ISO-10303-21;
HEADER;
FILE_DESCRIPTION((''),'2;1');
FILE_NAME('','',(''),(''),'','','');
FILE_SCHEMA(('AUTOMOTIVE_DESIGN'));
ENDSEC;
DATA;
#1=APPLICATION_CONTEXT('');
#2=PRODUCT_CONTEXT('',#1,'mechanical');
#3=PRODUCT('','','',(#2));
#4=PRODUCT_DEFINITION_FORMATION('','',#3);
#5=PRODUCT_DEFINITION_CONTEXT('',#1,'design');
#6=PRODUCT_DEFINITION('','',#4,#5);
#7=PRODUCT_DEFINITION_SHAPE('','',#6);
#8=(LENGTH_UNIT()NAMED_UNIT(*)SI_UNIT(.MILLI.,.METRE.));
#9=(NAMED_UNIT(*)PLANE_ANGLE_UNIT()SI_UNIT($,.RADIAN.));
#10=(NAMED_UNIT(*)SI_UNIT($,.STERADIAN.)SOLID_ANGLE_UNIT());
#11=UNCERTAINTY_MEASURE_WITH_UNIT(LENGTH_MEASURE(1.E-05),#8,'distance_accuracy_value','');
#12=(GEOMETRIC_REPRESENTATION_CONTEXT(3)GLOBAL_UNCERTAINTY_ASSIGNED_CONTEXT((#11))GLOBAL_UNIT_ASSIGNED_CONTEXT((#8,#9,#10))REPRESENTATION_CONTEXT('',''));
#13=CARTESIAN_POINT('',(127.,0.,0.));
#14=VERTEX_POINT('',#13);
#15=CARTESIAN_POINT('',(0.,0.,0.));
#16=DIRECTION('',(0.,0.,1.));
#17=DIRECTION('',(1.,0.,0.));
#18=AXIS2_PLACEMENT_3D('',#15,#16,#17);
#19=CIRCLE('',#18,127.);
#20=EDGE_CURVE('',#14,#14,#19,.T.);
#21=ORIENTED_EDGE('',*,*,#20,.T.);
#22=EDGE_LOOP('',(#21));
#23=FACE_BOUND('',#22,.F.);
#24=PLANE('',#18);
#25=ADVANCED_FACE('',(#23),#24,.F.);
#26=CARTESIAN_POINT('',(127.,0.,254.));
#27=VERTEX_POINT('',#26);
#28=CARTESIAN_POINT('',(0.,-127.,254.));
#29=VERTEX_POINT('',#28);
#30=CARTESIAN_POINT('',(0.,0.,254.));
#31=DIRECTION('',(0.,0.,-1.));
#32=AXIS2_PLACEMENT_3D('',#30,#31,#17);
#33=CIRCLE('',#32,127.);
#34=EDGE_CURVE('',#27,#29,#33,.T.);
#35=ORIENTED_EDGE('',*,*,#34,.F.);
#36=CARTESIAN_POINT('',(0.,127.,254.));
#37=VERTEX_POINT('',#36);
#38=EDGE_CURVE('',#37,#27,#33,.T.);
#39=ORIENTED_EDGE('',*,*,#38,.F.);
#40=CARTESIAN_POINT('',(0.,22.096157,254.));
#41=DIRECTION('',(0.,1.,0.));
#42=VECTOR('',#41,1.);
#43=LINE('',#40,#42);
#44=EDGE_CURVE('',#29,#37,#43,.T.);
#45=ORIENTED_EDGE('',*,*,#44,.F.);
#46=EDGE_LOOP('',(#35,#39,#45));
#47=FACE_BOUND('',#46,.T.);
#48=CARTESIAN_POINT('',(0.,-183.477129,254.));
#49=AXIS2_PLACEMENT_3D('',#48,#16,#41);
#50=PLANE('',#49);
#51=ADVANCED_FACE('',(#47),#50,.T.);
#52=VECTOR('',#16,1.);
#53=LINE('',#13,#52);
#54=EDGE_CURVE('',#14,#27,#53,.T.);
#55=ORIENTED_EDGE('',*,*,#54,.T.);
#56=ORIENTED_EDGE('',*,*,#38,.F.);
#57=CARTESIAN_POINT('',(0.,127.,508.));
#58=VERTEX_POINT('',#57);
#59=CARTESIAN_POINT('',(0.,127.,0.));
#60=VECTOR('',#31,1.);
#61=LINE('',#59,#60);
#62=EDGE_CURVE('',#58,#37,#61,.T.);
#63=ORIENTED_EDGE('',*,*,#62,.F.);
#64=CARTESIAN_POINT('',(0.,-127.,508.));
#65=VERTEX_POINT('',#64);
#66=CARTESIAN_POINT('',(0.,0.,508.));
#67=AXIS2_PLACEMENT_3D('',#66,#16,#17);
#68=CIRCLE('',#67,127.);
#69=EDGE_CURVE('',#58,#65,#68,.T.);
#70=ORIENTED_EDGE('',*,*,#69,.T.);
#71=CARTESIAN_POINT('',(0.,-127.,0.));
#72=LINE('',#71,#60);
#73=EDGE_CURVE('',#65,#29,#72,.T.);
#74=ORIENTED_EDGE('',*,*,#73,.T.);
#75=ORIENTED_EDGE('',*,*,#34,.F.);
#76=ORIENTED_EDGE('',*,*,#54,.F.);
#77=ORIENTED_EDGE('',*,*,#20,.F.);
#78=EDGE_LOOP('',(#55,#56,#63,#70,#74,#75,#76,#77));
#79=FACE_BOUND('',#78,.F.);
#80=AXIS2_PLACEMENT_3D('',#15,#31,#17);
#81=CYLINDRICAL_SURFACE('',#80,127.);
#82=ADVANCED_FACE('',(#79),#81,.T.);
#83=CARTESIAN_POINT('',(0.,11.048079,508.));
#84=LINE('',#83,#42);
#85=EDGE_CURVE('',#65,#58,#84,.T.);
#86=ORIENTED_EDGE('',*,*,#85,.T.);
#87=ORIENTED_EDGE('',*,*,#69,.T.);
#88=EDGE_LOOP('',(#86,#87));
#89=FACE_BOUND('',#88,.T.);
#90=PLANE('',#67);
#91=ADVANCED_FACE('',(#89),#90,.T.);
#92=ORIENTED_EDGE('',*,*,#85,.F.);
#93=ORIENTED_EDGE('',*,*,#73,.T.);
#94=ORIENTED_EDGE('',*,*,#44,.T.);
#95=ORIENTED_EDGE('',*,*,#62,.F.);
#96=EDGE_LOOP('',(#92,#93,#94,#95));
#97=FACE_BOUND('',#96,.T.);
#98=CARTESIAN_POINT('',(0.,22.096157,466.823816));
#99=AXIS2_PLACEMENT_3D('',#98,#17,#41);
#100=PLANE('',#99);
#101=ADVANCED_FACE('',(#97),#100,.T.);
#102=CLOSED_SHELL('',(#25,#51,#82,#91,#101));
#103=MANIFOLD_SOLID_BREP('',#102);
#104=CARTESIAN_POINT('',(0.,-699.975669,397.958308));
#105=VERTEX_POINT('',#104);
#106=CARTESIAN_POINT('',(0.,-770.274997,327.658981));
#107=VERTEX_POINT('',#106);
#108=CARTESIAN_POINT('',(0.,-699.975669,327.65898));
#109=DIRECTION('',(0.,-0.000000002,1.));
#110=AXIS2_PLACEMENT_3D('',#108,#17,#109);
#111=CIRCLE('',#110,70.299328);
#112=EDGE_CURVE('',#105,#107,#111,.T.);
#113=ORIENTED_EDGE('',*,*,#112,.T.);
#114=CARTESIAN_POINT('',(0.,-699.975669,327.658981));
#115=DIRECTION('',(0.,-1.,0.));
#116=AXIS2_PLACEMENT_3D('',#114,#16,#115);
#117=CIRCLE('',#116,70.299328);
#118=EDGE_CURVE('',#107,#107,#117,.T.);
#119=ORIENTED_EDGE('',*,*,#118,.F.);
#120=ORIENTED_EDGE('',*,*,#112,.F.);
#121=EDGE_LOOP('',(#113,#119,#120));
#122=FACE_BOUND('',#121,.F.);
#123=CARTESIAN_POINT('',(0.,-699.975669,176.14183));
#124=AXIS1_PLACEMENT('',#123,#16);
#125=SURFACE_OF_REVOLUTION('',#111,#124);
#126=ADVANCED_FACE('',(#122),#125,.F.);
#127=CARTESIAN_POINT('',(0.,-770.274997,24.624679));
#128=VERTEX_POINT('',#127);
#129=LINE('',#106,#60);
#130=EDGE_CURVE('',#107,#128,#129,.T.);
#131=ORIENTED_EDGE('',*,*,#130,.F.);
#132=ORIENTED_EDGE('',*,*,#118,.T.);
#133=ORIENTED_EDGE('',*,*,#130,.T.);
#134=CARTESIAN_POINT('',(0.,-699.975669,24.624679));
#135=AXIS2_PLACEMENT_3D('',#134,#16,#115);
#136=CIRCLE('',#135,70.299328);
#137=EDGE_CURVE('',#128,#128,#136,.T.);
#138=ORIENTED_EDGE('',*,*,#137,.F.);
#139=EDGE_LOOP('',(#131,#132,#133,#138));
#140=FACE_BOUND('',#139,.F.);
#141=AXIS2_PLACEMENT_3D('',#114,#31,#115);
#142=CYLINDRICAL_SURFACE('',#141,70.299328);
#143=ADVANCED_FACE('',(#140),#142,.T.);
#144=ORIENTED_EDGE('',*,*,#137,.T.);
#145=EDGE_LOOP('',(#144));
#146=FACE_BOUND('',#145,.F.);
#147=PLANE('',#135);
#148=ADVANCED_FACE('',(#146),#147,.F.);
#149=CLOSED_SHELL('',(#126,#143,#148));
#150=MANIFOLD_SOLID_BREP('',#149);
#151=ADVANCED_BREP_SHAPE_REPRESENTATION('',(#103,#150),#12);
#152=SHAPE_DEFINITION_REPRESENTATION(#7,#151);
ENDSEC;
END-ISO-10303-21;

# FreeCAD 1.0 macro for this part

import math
import FreeCAD as App
import Part
import Sketcher

V = App.Vector
Q = App.Units.Quantity


def add_polygon(sketch, points):
    """Adds a closed chain of lines whose ends are joined by coincident constraints."""
    first, n = sketch.GeometryCount, len(points)
    for a, b in zip(points, points[1:] + points[:1]):
        sketch.addGeometry(Part.LineSegment(App.Vector(*a, 0), App.Vector(*b, 0)), False)
    for i in range(n):
        sketch.addConstraint(Sketcher.Constraint("Coincident", first + i, 2, first + (i + 1) % n, 1))

doc = App.newDocument("Part")
body = doc.addObject("PartDesign::Body", "Body")

sketch1 = body.newObject("Sketcher::SketchObject", "Sketch")
sketch1.AttachmentSupport = (doc.getObject("XY_Plane"), [""])
sketch1.MapMode = "FlatFace"
sketch1.addGeometry(Part.Circle(V(0, 0, 0), V(0, 0, 1), 127), False)
sketch1.addConstraint(Sketcher.Constraint("Coincident", 0, 3, -1, 1))
sketch1.addConstraint(Sketcher.Constraint("Diameter", 0, Q("10 in")))
pad1 = body.newObject("PartDesign::Pad", "Pad")
pad1.Profile = sketch1
pad1.Length = Q("20 in")

sketch2 = body.newObject("Sketcher::SketchObject", "Sketch001")
sketch2.AttachmentSupport = (doc.getObject("YZ_Plane"), [""])
sketch2.MapMode = "FlatFace"
add_polygon(sketch2, [(-183.477129, 679.647632), (-183.477129, 254), (227.669443, 254), (227.669443, 679.647632)])
sketch2.addConstraint(Sketcher.Constraint("Vertical", 0))
sketch2.addConstraint(Sketcher.Constraint("Horizontal", 1))
sketch2.addConstraint(Sketcher.Constraint("Vertical", 2))
sketch2.addConstraint(Sketcher.Constraint("Horizontal", 3))
sketch2.addConstraint(Sketcher.Constraint("DistanceY", -1, 1, 0, 2, Q("10 in")))
sketch2.addConstraint(Sketcher.Constraint("DistanceX", 1, 1, 1, 2, Q("411.146572 mm")))
sketch2.addConstraint(Sketcher.Constraint("DistanceY", 0, 2, 0, 1, Q("425.647633 mm")))
sketch2.addConstraint(Sketcher.Constraint("DistanceX", 0, 2, -1, 1, Q("183.477129 mm")))
pocket1 = body.newObject("PartDesign::Pocket", "Pocket")
pocket1.Profile = sketch2
pocket1.Type = "ThroughAll"
pocket1.Reversed = True
body2 = doc.addObject("PartDesign::Body", "Body001")

sketch3 = body2.newObject("Sketcher::SketchObject", "Sketch002")
sketch3.AttachmentSupport = (doc.getObject("YZ_Plane001"), [""])
sketch3.MapMode = "FlatFace"
sketch3.addGeometry(Part.ArcOfCircle(Part.Circle(V(-699.975669, 327.65898, 0), V(0, 0, 1), 70.299328), math.radians(90), math.radians(179.999999)), False)
sketch3.addGeometry(Part.LineSegment(V(-770.274997, 327.658981, 0), V(-770.274997, 24.624679, 0)), False)
sketch3.addGeometry(Part.LineSegment(V(-770.274997, 24.624679, 0), V(-699.975669, 24.624679, 0)), False)
sketch3.addGeometry(Part.LineSegment(V(-699.975669, 24.624679, 0), V(-699.975669, 397.958308, 0)), False)
sketch3.addGeometry(Part.LineSegment(V(-699.975669, 24.624679, 0), V(-699.975669, 397.958308, 0)), True)
sketch3.addConstraint(Sketcher.Constraint("Tangent", 0, 2, 1, 1))
sketch3.addConstraint(Sketcher.Constraint("Coincident", 1, 2, 2, 1))
sketch3.addConstraint(Sketcher.Constraint("Coincident", 2, 2, 3, 1))
sketch3.addConstraint(Sketcher.Constraint("Coincident", 3, 2, 0, 1))
sketch3.addConstraint(Sketcher.Constraint("Vertical", 1))
sketch3.addConstraint(Sketcher.Constraint("Horizontal", 2))
sketch3.addConstraint(Sketcher.Constraint("Vertical", 3))
sketch3.addConstraint(Sketcher.Constraint("Vertical", 4))
sketch3.addConstraint(Sketcher.Constraint("Coincident", 4, 1, 2, 2))
sketch3.addConstraint(Sketcher.Constraint("Vertical", 0, 3, 2, 2))
sketch3.addConstraint(Sketcher.Constraint("Equal", 3, 4))
sketch3.addConstraint(Sketcher.Constraint("Radius", 0, Q("70.299328 mm")))
sketch3.addConstraint(Sketcher.Constraint("DistanceY", 1, 2, 1, 1, Q("303.034302 mm")))
sketch3.addConstraint(Sketcher.Constraint("DistanceX", 0, 3, -1, 1, Q("699.975669 mm")))
sketch3.addConstraint(Sketcher.Constraint("DistanceY", -1, 1, 0, 3, Q("327.65898 mm")))
revolution = body2.newObject("PartDesign::Revolution", "Revolution")
revolution.Profile = sketch3
revolution.ReferenceAxis = (sketch3, ["Axis0"])
revolution.Angle = 360

doc.recompute()
